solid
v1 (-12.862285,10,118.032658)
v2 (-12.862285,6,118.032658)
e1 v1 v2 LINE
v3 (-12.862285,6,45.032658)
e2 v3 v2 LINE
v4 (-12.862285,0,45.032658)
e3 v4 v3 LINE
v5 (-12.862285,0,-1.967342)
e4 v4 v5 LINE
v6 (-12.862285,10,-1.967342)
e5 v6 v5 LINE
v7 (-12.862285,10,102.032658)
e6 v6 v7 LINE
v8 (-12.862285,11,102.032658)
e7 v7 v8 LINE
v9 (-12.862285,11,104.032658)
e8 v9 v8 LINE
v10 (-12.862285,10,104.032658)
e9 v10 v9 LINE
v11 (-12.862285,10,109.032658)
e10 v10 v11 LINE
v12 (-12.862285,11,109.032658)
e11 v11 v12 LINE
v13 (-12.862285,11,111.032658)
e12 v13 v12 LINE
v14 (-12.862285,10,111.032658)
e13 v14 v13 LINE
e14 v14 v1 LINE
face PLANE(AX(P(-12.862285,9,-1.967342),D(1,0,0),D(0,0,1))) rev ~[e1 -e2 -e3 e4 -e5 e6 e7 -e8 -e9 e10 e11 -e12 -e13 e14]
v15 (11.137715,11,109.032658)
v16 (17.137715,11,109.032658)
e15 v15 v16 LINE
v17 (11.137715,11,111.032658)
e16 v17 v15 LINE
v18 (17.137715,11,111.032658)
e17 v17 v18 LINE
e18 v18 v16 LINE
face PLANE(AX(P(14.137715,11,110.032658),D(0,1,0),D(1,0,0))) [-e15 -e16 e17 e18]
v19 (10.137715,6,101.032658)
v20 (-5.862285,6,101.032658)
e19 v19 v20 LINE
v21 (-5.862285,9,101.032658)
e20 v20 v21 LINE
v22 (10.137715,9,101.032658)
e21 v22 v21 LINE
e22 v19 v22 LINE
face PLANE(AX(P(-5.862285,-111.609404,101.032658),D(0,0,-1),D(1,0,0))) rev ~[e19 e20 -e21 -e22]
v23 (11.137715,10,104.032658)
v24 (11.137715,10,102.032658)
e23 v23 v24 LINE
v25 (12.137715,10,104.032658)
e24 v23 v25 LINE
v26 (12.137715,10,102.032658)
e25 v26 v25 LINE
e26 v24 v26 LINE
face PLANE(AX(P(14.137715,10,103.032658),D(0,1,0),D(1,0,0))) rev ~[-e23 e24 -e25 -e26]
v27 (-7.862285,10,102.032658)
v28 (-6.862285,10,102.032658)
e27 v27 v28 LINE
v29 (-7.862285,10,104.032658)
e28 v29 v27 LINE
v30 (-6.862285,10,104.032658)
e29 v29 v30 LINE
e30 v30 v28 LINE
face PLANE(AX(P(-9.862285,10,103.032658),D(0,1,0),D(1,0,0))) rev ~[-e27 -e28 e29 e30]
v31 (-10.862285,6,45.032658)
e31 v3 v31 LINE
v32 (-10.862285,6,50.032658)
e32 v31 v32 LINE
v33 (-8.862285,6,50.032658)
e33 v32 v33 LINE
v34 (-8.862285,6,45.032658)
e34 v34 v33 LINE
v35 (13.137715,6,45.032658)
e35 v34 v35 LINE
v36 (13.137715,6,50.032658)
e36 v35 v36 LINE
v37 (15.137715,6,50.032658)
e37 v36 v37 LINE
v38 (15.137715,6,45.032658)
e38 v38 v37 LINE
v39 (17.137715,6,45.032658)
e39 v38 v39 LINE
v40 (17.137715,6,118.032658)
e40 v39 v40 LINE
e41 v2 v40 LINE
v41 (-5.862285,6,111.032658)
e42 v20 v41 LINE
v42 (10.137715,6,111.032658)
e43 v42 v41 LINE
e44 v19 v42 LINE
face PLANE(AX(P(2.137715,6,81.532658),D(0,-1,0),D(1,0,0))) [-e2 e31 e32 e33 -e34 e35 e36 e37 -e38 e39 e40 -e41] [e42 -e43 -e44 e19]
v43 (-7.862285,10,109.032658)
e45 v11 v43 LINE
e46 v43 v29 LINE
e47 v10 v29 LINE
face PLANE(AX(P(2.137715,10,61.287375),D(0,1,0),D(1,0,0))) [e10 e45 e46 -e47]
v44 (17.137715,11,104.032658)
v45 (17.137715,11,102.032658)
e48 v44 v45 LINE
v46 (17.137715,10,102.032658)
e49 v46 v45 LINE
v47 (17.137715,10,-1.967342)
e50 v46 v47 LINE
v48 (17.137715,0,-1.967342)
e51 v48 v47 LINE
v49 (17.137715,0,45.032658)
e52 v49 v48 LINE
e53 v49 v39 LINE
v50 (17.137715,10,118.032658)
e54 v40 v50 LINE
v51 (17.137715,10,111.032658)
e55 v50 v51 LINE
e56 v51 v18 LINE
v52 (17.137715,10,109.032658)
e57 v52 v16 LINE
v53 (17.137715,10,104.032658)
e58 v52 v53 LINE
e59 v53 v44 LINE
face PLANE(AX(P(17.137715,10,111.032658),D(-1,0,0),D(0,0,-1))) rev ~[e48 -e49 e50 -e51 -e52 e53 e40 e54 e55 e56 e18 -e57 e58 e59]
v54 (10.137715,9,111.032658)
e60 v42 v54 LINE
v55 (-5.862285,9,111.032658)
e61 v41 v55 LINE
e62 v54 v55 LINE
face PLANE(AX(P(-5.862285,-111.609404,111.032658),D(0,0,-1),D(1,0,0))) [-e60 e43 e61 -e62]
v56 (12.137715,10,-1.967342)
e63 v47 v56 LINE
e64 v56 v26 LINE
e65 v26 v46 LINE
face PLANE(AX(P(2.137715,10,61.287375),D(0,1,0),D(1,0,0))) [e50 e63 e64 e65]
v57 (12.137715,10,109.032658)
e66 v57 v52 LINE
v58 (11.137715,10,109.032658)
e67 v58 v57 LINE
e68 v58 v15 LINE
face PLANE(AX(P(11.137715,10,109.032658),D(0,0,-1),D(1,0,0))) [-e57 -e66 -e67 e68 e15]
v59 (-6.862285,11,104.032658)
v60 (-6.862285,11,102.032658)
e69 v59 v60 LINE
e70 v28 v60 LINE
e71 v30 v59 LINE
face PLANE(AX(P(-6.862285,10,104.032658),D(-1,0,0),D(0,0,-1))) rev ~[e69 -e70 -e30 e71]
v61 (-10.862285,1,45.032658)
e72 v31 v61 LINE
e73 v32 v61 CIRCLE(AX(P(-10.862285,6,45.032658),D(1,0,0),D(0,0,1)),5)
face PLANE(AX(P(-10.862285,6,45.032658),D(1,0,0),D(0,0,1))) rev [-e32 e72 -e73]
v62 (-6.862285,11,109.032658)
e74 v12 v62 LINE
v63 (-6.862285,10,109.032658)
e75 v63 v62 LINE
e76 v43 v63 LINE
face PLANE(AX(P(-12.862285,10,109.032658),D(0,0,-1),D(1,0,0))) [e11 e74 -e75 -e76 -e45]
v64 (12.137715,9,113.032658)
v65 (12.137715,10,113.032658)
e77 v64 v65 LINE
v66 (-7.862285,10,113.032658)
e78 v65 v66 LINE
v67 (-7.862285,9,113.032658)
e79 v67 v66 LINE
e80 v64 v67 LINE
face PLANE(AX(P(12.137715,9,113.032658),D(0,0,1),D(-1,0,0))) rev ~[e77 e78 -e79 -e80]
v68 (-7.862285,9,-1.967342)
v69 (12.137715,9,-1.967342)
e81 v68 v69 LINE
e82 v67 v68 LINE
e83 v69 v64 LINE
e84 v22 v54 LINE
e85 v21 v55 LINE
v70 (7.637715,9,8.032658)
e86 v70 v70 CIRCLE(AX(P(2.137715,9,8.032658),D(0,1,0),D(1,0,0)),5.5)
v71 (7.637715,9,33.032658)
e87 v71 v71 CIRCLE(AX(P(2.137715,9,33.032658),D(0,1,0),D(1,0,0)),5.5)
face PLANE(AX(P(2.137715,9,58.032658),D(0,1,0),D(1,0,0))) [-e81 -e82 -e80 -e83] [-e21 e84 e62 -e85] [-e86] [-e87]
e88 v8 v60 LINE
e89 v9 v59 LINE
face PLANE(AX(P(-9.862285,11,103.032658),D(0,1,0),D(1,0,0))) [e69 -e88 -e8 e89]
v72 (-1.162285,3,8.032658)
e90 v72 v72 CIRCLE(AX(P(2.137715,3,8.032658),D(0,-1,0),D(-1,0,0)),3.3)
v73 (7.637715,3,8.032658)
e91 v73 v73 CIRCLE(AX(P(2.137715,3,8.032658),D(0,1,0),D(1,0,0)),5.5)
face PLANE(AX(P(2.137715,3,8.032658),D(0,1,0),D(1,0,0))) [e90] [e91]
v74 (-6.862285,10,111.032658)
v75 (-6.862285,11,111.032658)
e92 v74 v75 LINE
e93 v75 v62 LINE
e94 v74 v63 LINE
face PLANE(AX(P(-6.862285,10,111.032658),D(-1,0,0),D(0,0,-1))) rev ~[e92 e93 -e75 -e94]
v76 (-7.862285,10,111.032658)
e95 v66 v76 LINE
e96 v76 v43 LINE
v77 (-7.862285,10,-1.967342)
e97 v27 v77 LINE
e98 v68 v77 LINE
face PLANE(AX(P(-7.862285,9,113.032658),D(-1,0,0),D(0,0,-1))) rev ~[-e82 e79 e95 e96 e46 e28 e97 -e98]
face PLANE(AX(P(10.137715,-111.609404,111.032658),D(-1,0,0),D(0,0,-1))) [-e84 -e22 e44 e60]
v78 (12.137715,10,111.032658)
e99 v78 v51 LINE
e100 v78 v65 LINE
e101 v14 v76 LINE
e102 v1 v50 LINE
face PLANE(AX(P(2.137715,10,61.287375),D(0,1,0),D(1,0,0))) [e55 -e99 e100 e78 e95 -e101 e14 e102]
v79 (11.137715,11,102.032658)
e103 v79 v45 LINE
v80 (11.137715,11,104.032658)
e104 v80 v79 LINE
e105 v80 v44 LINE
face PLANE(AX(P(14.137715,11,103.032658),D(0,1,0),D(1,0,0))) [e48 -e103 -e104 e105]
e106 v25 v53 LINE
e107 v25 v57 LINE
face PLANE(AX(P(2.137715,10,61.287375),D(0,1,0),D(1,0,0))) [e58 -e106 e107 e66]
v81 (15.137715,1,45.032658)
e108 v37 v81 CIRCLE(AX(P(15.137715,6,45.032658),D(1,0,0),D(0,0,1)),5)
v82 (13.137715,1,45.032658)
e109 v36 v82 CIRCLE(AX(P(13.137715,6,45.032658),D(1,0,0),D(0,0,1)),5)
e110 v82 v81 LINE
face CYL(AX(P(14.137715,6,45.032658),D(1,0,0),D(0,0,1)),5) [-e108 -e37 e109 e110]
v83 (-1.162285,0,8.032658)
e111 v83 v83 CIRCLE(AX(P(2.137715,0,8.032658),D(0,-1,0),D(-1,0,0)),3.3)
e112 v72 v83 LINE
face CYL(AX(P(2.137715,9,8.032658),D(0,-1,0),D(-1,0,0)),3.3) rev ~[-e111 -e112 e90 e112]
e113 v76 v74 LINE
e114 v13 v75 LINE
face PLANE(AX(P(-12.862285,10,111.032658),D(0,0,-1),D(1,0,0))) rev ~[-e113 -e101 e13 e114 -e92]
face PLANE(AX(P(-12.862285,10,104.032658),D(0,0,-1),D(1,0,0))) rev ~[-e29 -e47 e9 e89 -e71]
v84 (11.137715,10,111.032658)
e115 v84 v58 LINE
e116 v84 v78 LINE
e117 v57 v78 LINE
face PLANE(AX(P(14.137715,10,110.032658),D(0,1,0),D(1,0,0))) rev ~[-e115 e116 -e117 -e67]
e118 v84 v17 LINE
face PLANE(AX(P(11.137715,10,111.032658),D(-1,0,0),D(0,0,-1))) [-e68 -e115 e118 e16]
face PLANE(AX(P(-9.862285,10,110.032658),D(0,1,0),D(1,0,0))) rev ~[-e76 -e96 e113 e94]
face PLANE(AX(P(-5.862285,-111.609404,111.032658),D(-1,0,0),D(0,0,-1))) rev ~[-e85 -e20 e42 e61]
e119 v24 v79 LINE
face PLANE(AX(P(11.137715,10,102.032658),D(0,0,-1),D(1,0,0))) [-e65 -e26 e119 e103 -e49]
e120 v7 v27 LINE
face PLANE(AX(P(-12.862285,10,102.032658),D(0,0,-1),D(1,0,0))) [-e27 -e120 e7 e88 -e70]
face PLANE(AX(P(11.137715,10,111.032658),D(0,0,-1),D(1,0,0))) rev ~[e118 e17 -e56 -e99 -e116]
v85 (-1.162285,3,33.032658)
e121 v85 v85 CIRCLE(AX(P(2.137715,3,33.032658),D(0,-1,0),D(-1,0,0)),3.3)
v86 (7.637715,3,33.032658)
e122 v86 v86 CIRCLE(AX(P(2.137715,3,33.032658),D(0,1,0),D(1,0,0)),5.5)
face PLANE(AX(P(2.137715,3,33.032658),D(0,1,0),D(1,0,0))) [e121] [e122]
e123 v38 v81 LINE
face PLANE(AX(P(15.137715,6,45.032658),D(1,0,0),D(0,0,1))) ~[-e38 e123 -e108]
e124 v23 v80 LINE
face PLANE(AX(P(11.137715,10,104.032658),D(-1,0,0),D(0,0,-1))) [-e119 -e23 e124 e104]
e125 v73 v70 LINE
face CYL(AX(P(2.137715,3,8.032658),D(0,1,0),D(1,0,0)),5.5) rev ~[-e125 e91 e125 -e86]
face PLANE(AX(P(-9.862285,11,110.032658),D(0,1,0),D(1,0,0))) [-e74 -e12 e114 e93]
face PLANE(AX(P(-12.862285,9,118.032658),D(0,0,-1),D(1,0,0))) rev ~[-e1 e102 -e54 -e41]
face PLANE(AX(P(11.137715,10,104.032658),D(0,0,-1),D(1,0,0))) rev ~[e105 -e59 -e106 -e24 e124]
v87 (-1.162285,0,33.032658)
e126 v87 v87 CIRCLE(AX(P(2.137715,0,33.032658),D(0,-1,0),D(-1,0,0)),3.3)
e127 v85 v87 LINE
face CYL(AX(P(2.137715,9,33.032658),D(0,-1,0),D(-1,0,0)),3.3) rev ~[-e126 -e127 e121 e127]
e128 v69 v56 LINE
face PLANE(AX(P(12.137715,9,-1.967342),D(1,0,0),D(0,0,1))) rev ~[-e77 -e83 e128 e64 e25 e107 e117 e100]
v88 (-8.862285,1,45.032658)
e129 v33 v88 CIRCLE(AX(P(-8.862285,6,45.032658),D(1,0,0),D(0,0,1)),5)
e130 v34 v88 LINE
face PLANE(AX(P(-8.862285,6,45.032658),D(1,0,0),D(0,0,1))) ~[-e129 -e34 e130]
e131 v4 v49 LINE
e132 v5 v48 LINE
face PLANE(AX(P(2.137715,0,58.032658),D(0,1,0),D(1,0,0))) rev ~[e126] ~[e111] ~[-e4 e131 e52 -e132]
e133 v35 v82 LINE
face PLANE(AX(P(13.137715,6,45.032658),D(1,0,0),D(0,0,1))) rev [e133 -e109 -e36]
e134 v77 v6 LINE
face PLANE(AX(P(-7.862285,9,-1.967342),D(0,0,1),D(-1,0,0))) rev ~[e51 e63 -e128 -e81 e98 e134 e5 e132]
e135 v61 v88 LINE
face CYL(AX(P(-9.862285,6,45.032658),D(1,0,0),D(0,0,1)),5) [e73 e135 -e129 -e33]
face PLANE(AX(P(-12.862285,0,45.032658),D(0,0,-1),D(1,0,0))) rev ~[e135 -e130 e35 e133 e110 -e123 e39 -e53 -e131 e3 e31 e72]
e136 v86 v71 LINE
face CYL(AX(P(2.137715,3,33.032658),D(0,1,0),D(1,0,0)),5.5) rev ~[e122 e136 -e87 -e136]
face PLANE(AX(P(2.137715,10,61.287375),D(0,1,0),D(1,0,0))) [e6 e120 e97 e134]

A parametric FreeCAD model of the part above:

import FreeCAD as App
import Part
import Sketcher

doc = App.newDocument("Part")
body = doc.addObject("PartDesign::Body", "Body")

sketch1 = body.newObject("Sketcher::SketchObject", "Sketch")
sketch1.AttachmentSupport = (doc.getObject("XZ_Plane"), [""])
sketch1.MapMode = "FlatFace"
sketch1.addGeometry([
    Part.LineSegment(App.Vector(-13, -2, 0), App.Vector(-13, 118, 0)),
    Part.LineSegment(App.Vector(-13, 118, 0), App.Vector(17, 118, 0)),
    Part.LineSegment(App.Vector(17, 118, 0), App.Vector(17, -2, 0)),
    Part.LineSegment(App.Vector(17, -2, 0), App.Vector(-13, -2, 0)),
], False)
sketch1.addConstraint([
    Sketcher.Constraint("Coincident", 0, 2, 1, 1),
    Sketcher.Constraint("Coincident", 1, 2, 2, 1),
    Sketcher.Constraint("Coincident", 2, 2, 3, 1),
    Sketcher.Constraint("Coincident", 3, 2, 0, 1),
    Sketcher.Constraint("Vertical", 0),
    Sketcher.Constraint("Horizontal", 1),
    Sketcher.Constraint("Vertical", 2),
    Sketcher.Constraint("Horizontal", 3),
    Sketcher.Constraint("DistanceX", 1, 1, 1, 2, 30.0),
    Sketcher.Constraint("DistanceY", 0, 1, 0, 2, 120.0),
    Sketcher.Constraint("DistanceX", 0, 2, -1, 1, 12.862285),
    Sketcher.Constraint("DistanceY", -1, 1, 0, 2, 118.032658),
])
pad1 = body.newObject("PartDesign::Pad", "Pad")
pad1.Profile = sketch1
pad1.Length = 9
pad1.Reversed = True

sketch2 = body.newObject("Sketcher::SketchObject", "Sketch001")
sketch2.AttachmentSupport = (doc.getObject("XZ_Plane"), [""])
sketch2.MapMode = "FlatFace"
sketch2.AttachmentOffset = App.Placement(App.Vector(0, 0, -9), App.Rotation())
sketch2.addGeometry([
    Part.LineSegment(App.Vector(-13, 118, 0), App.Vector(17, 118, 0)),
    Part.LineSegment(App.Vector(17, 118, 0), App.Vector(17, -2, 0)),
    Part.LineSegment(App.Vector(17, -2, 0), App.Vector(12, -2, 0)),
    Part.LineSegment(App.Vector(12, -2, 0), App.Vector(12, 113, 0)),
    Part.LineSegment(App.Vector(12, 113, 0), App.Vector(-8, 113, 0)),
    Part.LineSegment(App.Vector(-8, 113, 0), App.Vector(-8, -2, 0)),
    Part.LineSegment(App.Vector(-8, -2, 0), App.Vector(-13, -2, 0)),
    Part.LineSegment(App.Vector(-13, -2, 0), App.Vector(-13, 118, 0)),
], False)
sketch2.addConstraint([
    Sketcher.Constraint("Coincident", 0, 2, 1, 1),
    Sketcher.Constraint("Coincident", 1, 2, 2, 1),
    Sketcher.Constraint("Coincident", 2, 2, 3, 1),
    Sketcher.Constraint("Coincident", 3, 2, 4, 1),
    Sketcher.Constraint("Coincident", 4, 2, 5, 1),
    Sketcher.Constraint("Coincident", 5, 2, 6, 1),
    Sketcher.Constraint("Coincident", 6, 2, 7, 1),
    Sketcher.Constraint("Coincident", 7, 2, 0, 1),
    Sketcher.Constraint("Horizontal", 0),
    Sketcher.Constraint("Vertical", 1),
    Sketcher.Constraint("Horizontal", 2),
    Sketcher.Constraint("Vertical", 3),
    Sketcher.Constraint("Horizontal", 4),
    Sketcher.Constraint("Vertical", 5),
    Sketcher.Constraint("Horizontal", 6),
    Sketcher.Constraint("Vertical", 7),
    Sketcher.Constraint("Horizontal", 2, 2, 5, 2),
    Sketcher.Constraint("Equal", 2, 6),
    Sketcher.Constraint("DistanceX", 0, 1, 0, 2, 30.0),
    Sketcher.Constraint("DistanceX", 2, 2, 2, 1, 5.0),
    Sketcher.Constraint("DistanceY", 1, 2, 1, 1, 120.0),
    Sketcher.Constraint("DistanceY", 3, 1, 3, 2, 115.0),
    Sketcher.Constraint("DistanceX", -1, 1, 0, 2, 17.137715),
    Sketcher.Constraint("DistanceY", -1, 1, 0, 2, 118.032658),
])
pad2 = body.newObject("PartDesign::Pad", "Pad001")
pad2.Profile = sketch2
pad2.Length = 1
pad2.Reversed = True

sketch3 = body.newObject("Sketcher::SketchObject", "Sketch002")
sketch3.AttachmentSupport = (doc.getObject("XZ_Plane"), [""])
sketch3.MapMode = "FlatFace"
sketch3.AttachmentOffset = App.Placement(App.Vector(0, 0, -9), App.Rotation())
sketch3.addGeometry([
    Part.Circle(App.Vector(2.1, 8, 0), App.Vector(0, 0, 1), 3.3),
    Part.Circle(App.Vector(2.1, 33, 0), App.Vector(0, 0, 1), 3.3),
], False)
sketch3.addConstraint([
    Sketcher.Constraint("Equal", 0, 1),
    Sketcher.Constraint("Vertical", 0, 3, 1, 3),
    Sketcher.Constraint("Diameter", 0, 6.6),
    Sketcher.Constraint("DistanceY", 0, 3, 1, 3, 25.0),
    Sketcher.Constraint("DistanceX", -1, 1, 0, 3, 2.137715),
    Sketcher.Constraint("DistanceY", -1, 1, 0, 3, 8.032658),
])
doc.recompute()
hole = body.newObject("PartDesign::Hole", "Hole")
hole.Profile = sketch3
hole.ThreadType = "None"
hole.Diameter = 6.6
hole.DepthType = "ThroughAll"
hole.HoleCutType = "Counterbore"
hole.HoleCutDiameter = 11
hole.HoleCutDepth = 6
hole.Reversed = True

sketch4 = body.newObject("Sketcher::SketchObject", "Sketch003")
sketch4.AttachmentSupport = (doc.getObject("XZ_Plane"), [""])
sketch4.MapMode = "FlatFace"
sketch4.AttachmentOffset = App.Placement(App.Vector(0, 0, -10), App.Rotation())
sketch4.addGeometry([
    Part.LineSegment(App.Vector(11.1, 109, 0), App.Vector(11.1, 111, 0)),
    Part.LineSegment(App.Vector(11.1, 111, 0), App.Vector(17.1, 111, 0)),
    Part.LineSegment(App.Vector(17.1, 111, 0), App.Vector(17.1, 109, 0)),
    Part.LineSegment(App.Vector(17.1, 109, 0), App.Vector(11.1, 109, 0)),
    Part.LineSegment(App.Vector(-12.9, 109, 0), App.Vector(-12.9, 111, 0)),
    Part.LineSegment(App.Vector(-12.9, 111, 0), App.Vector(-6.9, 111, 0)),
    Part.LineSegment(App.Vector(-6.9, 111, 0), App.Vector(-6.9, 109, 0)),
    Part.LineSegment(App.Vector(-6.9, 109, 0), App.Vector(-12.9, 109, 0)),
    Part.LineSegment(App.Vector(11.1, 102, 0), App.Vector(11.1, 104, 0)),
    Part.LineSegment(App.Vector(11.1, 104, 0), App.Vector(17.1, 104, 0)),
    Part.LineSegment(App.Vector(17.1, 104, 0), App.Vector(17.1, 102, 0)),
    Part.LineSegment(App.Vector(17.1, 102, 0), App.Vector(11.1, 102, 0)),
    Part.LineSegment(App.Vector(-12.9, 102, 0), App.Vector(-12.9, 104, 0)),
    Part.LineSegment(App.Vector(-12.9, 104, 0), App.Vector(-6.9, 104, 0)),
    Part.LineSegment(App.Vector(-6.9, 104, 0), App.Vector(-6.9, 102, 0)),
    Part.LineSegment(App.Vector(-6.9, 102, 0), App.Vector(-12.9, 102, 0)),
], False)
sketch4.addConstraint([
    Sketcher.Constraint("Coincident", 0, 2, 1, 1),
    Sketcher.Constraint("Coincident", 1, 2, 2, 1),
    Sketcher.Constraint("Coincident", 2, 2, 3, 1),
    Sketcher.Constraint("Coincident", 3, 2, 0, 1),
    Sketcher.Constraint("Coincident", 4, 2, 5, 1),
    Sketcher.Constraint("Coincident", 5, 2, 6, 1),
    Sketcher.Constraint("Coincident", 6, 2, 7, 1),
    Sketcher.Constraint("Coincident", 7, 2, 4, 1),
    Sketcher.Constraint("Coincident", 8, 2, 9, 1),
    Sketcher.Constraint("Coincident", 9, 2, 10, 1),
    Sketcher.Constraint("Coincident", 10, 2, 11, 1),
    Sketcher.Constraint("Coincident", 11, 2, 8, 1),
    Sketcher.Constraint("Coincident", 12, 2, 13, 1),
    Sketcher.Constraint("Coincident", 13, 2, 14, 1),
    Sketcher.Constraint("Coincident", 14, 2, 15, 1),
    Sketcher.Constraint("Coincident", 15, 2, 12, 1),
    Sketcher.Constraint("Vertical", 0),
    Sketcher.Constraint("Horizontal", 1),
    Sketcher.Constraint("Vertical", 2),
    Sketcher.Constraint("Horizontal", 3),
    Sketcher.Constraint("Vertical", 4),
    Sketcher.Constraint("Horizontal", 5),
    Sketcher.Constraint("Vertical", 6),
    Sketcher.Constraint("Horizontal", 7),
    Sketcher.Constraint("Vertical", 8),
    Sketcher.Constraint("Horizontal", 9),
    Sketcher.Constraint("Vertical", 10),
    Sketcher.Constraint("Horizontal", 11),
    Sketcher.Constraint("Vertical", 12),
    Sketcher.Constraint("Horizontal", 13),
    Sketcher.Constraint("Vertical", 14),
    Sketcher.Constraint("Horizontal", 15),
    Sketcher.Constraint("Horizontal", 1, 2, 4, 2),
    Sketcher.Constraint("Horizontal", 3, 2, 6, 2),
    Sketcher.Constraint("Horizontal", 9, 2, 12, 2),
    Sketcher.Constraint("Horizontal", 11, 2, 14, 2),
    Sketcher.Constraint("Vertical", 3, 2, 8, 2),
    Sketcher.Constraint("Vertical", 2, 2, 9, 2),
    Sketcher.Constraint("Vertical", 7, 2, 12, 2),
    Sketcher.Constraint("Vertical", 6, 2, 13, 2),
    Sketcher.Constraint("Equal", 3, 5),
    Sketcher.Constraint("Equal", 6, 8),
    Sketcher.Constraint("DistanceX", 1, 1, 1, 2, 6.0),
    Sketcher.Constraint("DistanceY", 0, 1, 0, 2, 2.0),
    Sketcher.Constraint("DistanceX", 4, 2, 0, 2, 24.0),
    Sketcher.Constraint("DistanceY", 8, 2, 3, 2, 5.0),
    Sketcher.Constraint("DistanceX", -1, 1, 0, 2, 11.137715),
    Sketcher.Constraint("DistanceY", -1, 1, 0, 2, 111.032658),
])
pad3 = body.newObject("PartDesign::Pad", "Pad002")
pad3.Profile = sketch4
pad3.Length = 1
pad3.Reversed = True

sketch5 = body.newObject("Sketcher::SketchObject", "Sketch004")
sketch5.AttachmentSupport = (doc.getObject("XZ_Plane"), [""])
sketch5.MapMode = "FlatFace"
sketch5.AttachmentOffset = App.Placement(App.Vector(0, 0, -9), App.Rotation())
sketch5.addGeometry([
    Part.LineSegment(App.Vector(-6, 101, 0), App.Vector(-6, 111, 0)),
    Part.LineSegment(App.Vector(-6, 111, 0), App.Vector(10, 111, 0)),
    Part.LineSegment(App.Vector(10, 111, 0), App.Vector(10, 101, 0)),
    Part.LineSegment(App.Vector(10, 101, 0), App.Vector(-6, 101, 0)),
], False)
sketch5.addConstraint([
    Sketcher.Constraint("Coincident", 0, 2, 1, 1),
    Sketcher.Constraint("Coincident", 1, 2, 2, 1),
    Sketcher.Constraint("Coincident", 2, 2, 3, 1),
    Sketcher.Constraint("Coincident", 3, 2, 0, 1),
    Sketcher.Constraint("Vertical", 0),
    Sketcher.Constraint("Horizontal", 1),
    Sketcher.Constraint("Vertical", 2),
    Sketcher.Constraint("Horizontal", 3),
    Sketcher.Constraint("DistanceX", 1, 1, 1, 2, 16.0),
    Sketcher.Constraint("DistanceY", 0, 1, 0, 2, 10.0),
    Sketcher.Constraint("DistanceX", 0, 2, -1, 1, 5.862285),
    Sketcher.Constraint("DistanceY", -1, 1, 0, 2, 111.032658),
])
pocket1 = body.newObject("PartDesign::Pocket", "Pocket")
pocket1.Profile = sketch5
pocket1.Type = "ThroughAll"
pocket1.Midplane = True

sketch6 = body.newObject("Sketcher::SketchObject", "Sketch005")
sketch6.AttachmentSupport = (doc.getObject("XZ_Plane"), [""])
sketch6.MapMode = "FlatFace"
sketch6.addGeometry([
    Part.LineSegment(App.Vector(-13, 118, 0), App.Vector(-13, 45, 0)),
    Part.LineSegment(App.Vector(-13, 45, 0), App.Vector(17, 45, 0)),
    Part.LineSegment(App.Vector(17, 45, 0), App.Vector(17, 118, 0)),
    Part.LineSegment(App.Vector(17, 118, 0), App.Vector(-13, 118, 0)),
], False)
sketch6.addConstraint([
    Sketcher.Constraint("Coincident", 0, 2, 1, 1),
    Sketcher.Constraint("Coincident", 1, 2, 2, 1),
    Sketcher.Constraint("Coincident", 2, 2, 3, 1),
    Sketcher.Constraint("Coincident", 3, 2, 0, 1),
    Sketcher.Constraint("Vertical", 0),
    Sketcher.Constraint("Horizontal", 1),
    Sketcher.Constraint("Vertical", 2),
    Sketcher.Constraint("Horizontal", 3),
    Sketcher.Constraint("DistanceX", 1, 1, 1, 2, 30.0),
    Sketcher.Constraint("DistanceY", 0, 2, 0, 1, 73.0),
    Sketcher.Constraint("DistanceX", 0, 2, -1, 1, 12.862285),
    Sketcher.Constraint("DistanceY", -1, 1, 0, 2, 45.032658),
])
pocket2 = body.newObject("PartDesign::Pocket", "Pocket001")
pocket2.Profile = sketch6
pocket2.Length = 6

sketch7 = body.newObject("Sketcher::SketchObject", "Sketch006")
sketch7.AttachmentSupport = (doc.getObject("XZ_Plane"), [""])
sketch7.MapMode = "FlatFace"
sketch7.AttachmentOffset = App.Placement(App.Vector(0, 0, -6), App.Rotation())
sketch7.addGeometry([
    Part.LineSegment(App.Vector(-10.9, 50, 0), App.Vector(-10.9, 45, 0)),
    Part.LineSegment(App.Vector(-10.9, 45, 0), App.Vector(-8.9, 45, 0)),
    Part.LineSegment(App.Vector(-8.9, 45, 0), App.Vector(-8.9, 50, 0)),
    Part.LineSegment(App.Vector(-8.9, 50, 0), App.Vector(-10.9, 50, 0)),
    Part.LineSegment(App.Vector(13.1, 50, 0), App.Vector(13.1, 45, 0)),
    Part.LineSegment(App.Vector(13.1, 45, 0), App.Vector(15.1, 45, 0)),
    Part.LineSegment(App.Vector(15.1, 45, 0), App.Vector(15.1, 50, 0)),
    Part.LineSegment(App.Vector(15.1, 50, 0), App.Vector(13.1, 50, 0)),
], False)
sketch7.addGeometry(Part.LineSegment(App.Vector(-10.9, 45, 0), App.Vector(15.1, 45, 0)), True)
sketch7.addConstraint([
    Sketcher.Constraint("Coincident", 0, 2, 1, 1),
    Sketcher.Constraint("Coincident", 1, 2, 2, 1),
    Sketcher.Constraint("Coincident", 2, 2, 3, 1),
    Sketcher.Constraint("Coincident", 3, 2, 0, 1),
    Sketcher.Constraint("Coincident", 4, 2, 5, 1),
    Sketcher.Constraint("Coincident", 5, 2, 6, 1),
    Sketcher.Constraint("Coincident", 6, 2, 7, 1),
    Sketcher.Constraint("Coincident", 7, 2, 4, 1),
    Sketcher.Constraint("Vertical", 0),
    Sketcher.Constraint("Horizontal", 1),
    Sketcher.Constraint("Vertical", 2),
    Sketcher.Constraint("Horizontal", 3),
    Sketcher.Constraint("Vertical", 4),
    Sketcher.Constraint("Horizontal", 5),
    Sketcher.Constraint("Vertical", 6),
    Sketcher.Constraint("Horizontal", 7),
    Sketcher.Constraint("Horizontal", 8),
    Sketcher.Constraint("Coincident", 8, 1, 0, 2),
    Sketcher.Constraint("Coincident", 8, 2, 5, 2),
    Sketcher.Constraint("Horizontal", 3, 2, 6, 2),
    Sketcher.Constraint("Equal", 3, 5),
    Sketcher.Constraint("DistanceX", 1, 1, 1, 2, 2.0),
    Sketcher.Constraint("DistanceX", 8, 1, 8, 2, 26.0),
    Sketcher.Constraint("DistanceY", 0, 2, 0, 1, 5.0),
    Sketcher.Constraint("DistanceX", 0, 2, -1, 1, 10.862285),
    Sketcher.Constraint("DistanceY", -1, 1, 0, 2, 45.032658),
])
revolution = body.newObject("PartDesign::Revolution", "Revolution")
revolution.Profile = sketch7
revolution.ReferenceAxis = (sketch7, ["Axis0"])
revolution.Angle = 90

doc.recompute()
